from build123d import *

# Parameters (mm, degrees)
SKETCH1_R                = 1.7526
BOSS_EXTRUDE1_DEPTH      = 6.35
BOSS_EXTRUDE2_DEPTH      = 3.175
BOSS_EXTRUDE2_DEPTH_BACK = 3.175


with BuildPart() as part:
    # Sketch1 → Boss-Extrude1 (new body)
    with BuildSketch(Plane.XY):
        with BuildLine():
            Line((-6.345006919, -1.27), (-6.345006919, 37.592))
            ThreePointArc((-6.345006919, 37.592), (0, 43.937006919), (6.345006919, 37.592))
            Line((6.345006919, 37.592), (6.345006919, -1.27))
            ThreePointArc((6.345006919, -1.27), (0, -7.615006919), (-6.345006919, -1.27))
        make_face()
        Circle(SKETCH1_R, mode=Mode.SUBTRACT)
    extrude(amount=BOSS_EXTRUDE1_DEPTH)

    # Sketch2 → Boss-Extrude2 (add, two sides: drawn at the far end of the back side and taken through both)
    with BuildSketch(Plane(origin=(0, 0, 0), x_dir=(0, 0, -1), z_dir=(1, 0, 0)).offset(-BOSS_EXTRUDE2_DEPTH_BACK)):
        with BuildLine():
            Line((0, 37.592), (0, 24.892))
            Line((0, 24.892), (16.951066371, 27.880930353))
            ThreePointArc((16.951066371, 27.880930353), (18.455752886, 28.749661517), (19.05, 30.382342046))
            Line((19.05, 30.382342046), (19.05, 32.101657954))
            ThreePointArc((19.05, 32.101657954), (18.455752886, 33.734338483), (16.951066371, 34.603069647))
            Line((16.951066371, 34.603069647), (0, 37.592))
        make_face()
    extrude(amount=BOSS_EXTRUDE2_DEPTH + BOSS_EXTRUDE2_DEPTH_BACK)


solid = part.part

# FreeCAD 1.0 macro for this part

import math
import FreeCAD as App
import Part
import Sketcher
Q = App.Units.Quantity

doc = App.newDocument("Part")
body = doc.addObject("PartDesign::Body", "Body")

# Sketch on XY plane
sketch1 = body.newObject("Sketcher::SketchObject", "Sketch")
sketch1.AttachmentSupport = (doc.getObject("XY_Plane"), [""])
sketch1.MapMode = "FlatFace"
sketch1.addGeometry(Part.LineSegment(App.Vector(-6.345007, 37.592, 0), App.Vector(-6.345007, -1.27, 0)), False)
sketch1.addGeometry(Part.ArcOfCircle(Part.Circle(App.Vector(0, -1.27, 0), App.Vector(0, 0, 1), 6.345007), math.radians(180), math.radians(360)), False)
sketch1.addGeometry(Part.LineSegment(App.Vector(6.345007, -1.27, 0), App.Vector(6.345007, 37.592, 0)), False)
sketch1.addGeometry(Part.ArcOfCircle(Part.Circle(App.Vector(0, 37.592, 0), App.Vector(0, 0, 1), 6.345007), math.radians(0), math.radians(180)), False)
sketch1.addGeometry(Part.Circle(App.Vector(0, 0, 0), App.Vector(0, 0, 1), 1.7526), False)
sketch1.addConstraint(Sketcher.Constraint("Tangent", 0, 2, 1, 1))
sketch1.addConstraint(Sketcher.Constraint("Tangent", 1, 2, 2, 1))
sketch1.addConstraint(Sketcher.Constraint("Tangent", 2, 2, 3, 1))
sketch1.addConstraint(Sketcher.Constraint("Tangent", 3, 2, 0, 1))
sketch1.addConstraint(Sketcher.Constraint("Vertical", 0))
sketch1.addConstraint(Sketcher.Constraint("Vertical", 2))
sketch1.addConstraint(Sketcher.Constraint("Coincident", 4, 3, -1, 1))
sketch1.addConstraint(Sketcher.Constraint("PointOnObject", 1, 3, -2))
sketch1.addConstraint(Sketcher.Constraint("Diameter", 4, Q("0.138 in")))
sketch1.addConstraint(Sketcher.Constraint("DistanceY", 0, 2, 0, 1, Q("1.53 in")))
sketch1.addConstraint(Sketcher.Constraint("DistanceY", 1, 3, -1, 1, Q("0.05 in")))
sketch1.addConstraint(Sketcher.Constraint("Radius", 1, 6.345007))
pad1 = body.newObject("PartDesign::Pad", "Pad")
pad1.Profile = sketch1
pad1.Length = Q("0.25 in")

# Sketch on YZ plane
sketch2 = body.newObject("Sketcher::SketchObject", "Sketch001")
sketch2.AttachmentSupport = (doc.getObject("YZ_Plane"), [""])
sketch2.MapMode = "FlatFace"
sketch2.addGeometry(Part.LineSegment(App.Vector(37.592, 0, 0), App.Vector(24.892, 0, 0)), False)
sketch2.addGeometry(Part.LineSegment(App.Vector(24.892, 0, 0), App.Vector(27.88093, -16.951066, 0)), False)
sketch2.addGeometry(Part.ArcOfCircle(Part.Circle(App.Vector(30.382342, -16.51, 0), App.Vector(0, 0, 1), 2.54), math.radians(-170), math.radians(-90)), False)
sketch2.addGeometry(Part.LineSegment(App.Vector(30.382342, -19.05, 0), App.Vector(32.101658, -19.05, 0)), False)
sketch2.addGeometry(Part.ArcOfCircle(Part.Circle(App.Vector(32.101658, -16.51, 0), App.Vector(0, 0, 1), 2.54), math.radians(-90), math.radians(-10)), False)
sketch2.addGeometry(Part.LineSegment(App.Vector(34.60307, -16.951066, 0), App.Vector(37.592, 0, 0)), False)
sketch2.addConstraint(Sketcher.Constraint("Coincident", 0, 2, 1, 1))
sketch2.addConstraint(Sketcher.Constraint("Tangent", 1, 2, 2, 1))
sketch2.addConstraint(Sketcher.Constraint("Tangent", 2, 2, 3, 1))
sketch2.addConstraint(Sketcher.Constraint("Tangent", 3, 2, 4, 1))
sketch2.addConstraint(Sketcher.Constraint("Tangent", 4, 2, 5, 1))
sketch2.addConstraint(Sketcher.Constraint("Coincident", 5, 2, 0, 1))
sketch2.addConstraint(Sketcher.Constraint("Horizontal", 0))
sketch2.addConstraint(Sketcher.Constraint("Horizontal", 3))
sketch2.addConstraint(Sketcher.Constraint("Equal", 2, 4))
sketch2.addConstraint(Sketcher.Constraint("PointOnObject", 0, 2, -1))
sketch2.addConstraint(Sketcher.Constraint("Horizontal", 1, 2, 4, 2))
sketch2.addConstraint(Sketcher.Constraint("Radius", 2, Q("0.1 in")))
sketch2.addConstraint(Sketcher.Constraint("DistanceX", 0, 2, 0, 1, Q("0.5 in")))
sketch2.addConstraint(Sketcher.Constraint("Angle", 1, Q("-80 deg")))
sketch2.addConstraint(Sketcher.Constraint("DistanceY", 2, 3, -1, 1, Q("0.65 in")))
sketch2.addConstraint(Sketcher.Constraint("DistanceX", -1, 1, 0, 2, Q("0.98 in")))
pad2 = body.newObject("PartDesign::Pad", "Pad001")
pad2.Profile = sketch2
pad2.Type = "TwoLengths"
pad2.Length = Q("0.125 in")
pad2.Length2 = Q("0.125 in")

doc.recompute()
